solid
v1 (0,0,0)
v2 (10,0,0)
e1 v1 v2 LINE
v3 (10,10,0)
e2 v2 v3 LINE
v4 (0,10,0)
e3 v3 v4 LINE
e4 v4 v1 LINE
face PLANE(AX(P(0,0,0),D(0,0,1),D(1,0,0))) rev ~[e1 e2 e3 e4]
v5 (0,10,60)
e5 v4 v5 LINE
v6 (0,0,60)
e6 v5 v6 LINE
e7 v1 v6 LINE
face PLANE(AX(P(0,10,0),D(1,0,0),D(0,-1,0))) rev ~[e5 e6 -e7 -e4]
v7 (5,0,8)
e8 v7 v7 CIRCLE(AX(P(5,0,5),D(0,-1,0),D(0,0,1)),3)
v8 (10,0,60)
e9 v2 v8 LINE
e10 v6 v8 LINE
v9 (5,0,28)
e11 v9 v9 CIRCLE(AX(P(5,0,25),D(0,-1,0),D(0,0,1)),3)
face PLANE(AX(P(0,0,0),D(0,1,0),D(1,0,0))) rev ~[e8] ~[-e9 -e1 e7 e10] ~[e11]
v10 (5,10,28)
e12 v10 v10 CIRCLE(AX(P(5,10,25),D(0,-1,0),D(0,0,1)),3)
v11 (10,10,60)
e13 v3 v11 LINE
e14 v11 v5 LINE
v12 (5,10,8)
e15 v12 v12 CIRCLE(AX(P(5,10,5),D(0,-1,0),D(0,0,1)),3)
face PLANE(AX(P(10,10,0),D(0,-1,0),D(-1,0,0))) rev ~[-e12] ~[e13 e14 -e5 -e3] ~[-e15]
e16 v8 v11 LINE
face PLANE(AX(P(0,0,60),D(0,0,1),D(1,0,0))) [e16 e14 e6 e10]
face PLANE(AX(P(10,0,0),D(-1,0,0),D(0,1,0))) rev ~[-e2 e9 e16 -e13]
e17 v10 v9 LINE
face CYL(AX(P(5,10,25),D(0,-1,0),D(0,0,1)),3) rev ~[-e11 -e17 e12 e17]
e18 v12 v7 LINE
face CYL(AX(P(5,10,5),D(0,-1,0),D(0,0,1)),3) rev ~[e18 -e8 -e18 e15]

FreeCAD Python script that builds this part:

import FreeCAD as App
import Part
import Sketcher

V = App.Vector

doc = App.newDocument("Part")
body = doc.addObject("PartDesign::Body", "Body")

sketch1 = body.newObject("Sketcher::SketchObject", "Sketch")
sketch1.AttachmentSupport = (doc.getObject("XY_Plane"), [""])
sketch1.MapMode = "FlatFace"
sketch1.addGeometry(Part.LineSegment(V(0, 10, 0), V(0, 0, 0)), False)
sketch1.addGeometry(Part.LineSegment(V(0, 0, 0), V(10, 0, 0)), False)
sketch1.addGeometry(Part.LineSegment(V(10, 0, 0), V(10, 10, 0)), False)
sketch1.addGeometry(Part.LineSegment(V(10, 10, 0), V(0, 10, 0)), False)
sketch1.addConstraint(Sketcher.Constraint("Coincident", 0, 2, 1, 1))
sketch1.addConstraint(Sketcher.Constraint("Coincident", 1, 2, 2, 1))
sketch1.addConstraint(Sketcher.Constraint("Coincident", 2, 2, 3, 1))
sketch1.addConstraint(Sketcher.Constraint("Coincident", 3, 2, 0, 1))
sketch1.addConstraint(Sketcher.Constraint("Vertical", 0))
sketch1.addConstraint(Sketcher.Constraint("Horizontal", 1))
sketch1.addConstraint(Sketcher.Constraint("Vertical", 2))
sketch1.addConstraint(Sketcher.Constraint("Horizontal", 3))
sketch1.addConstraint(Sketcher.Constraint("Coincident", 0, 2, -1, 1))
sketch1.addConstraint(Sketcher.Constraint("Equal", 3, 0))
sketch1.addConstraint(Sketcher.Constraint("DistanceX", 1, 1, 1, 2, 10.0))
pad1 = body.newObject("PartDesign::Pad", "Pad")
pad1.Profile = sketch1
pad1.Length = 60

sketch2 = body.newObject("Sketcher::SketchObject", "Sketch001")
sketch2.AttachmentSupport = (doc.getObject("XZ_Plane"), [""])
sketch2.MapMode = "FlatFace"
sketch2.AttachmentOffset = App.Placement(V(0, 0, -10), App.Rotation())
sketch2.addGeometry(Part.Circle(V(5, 5, 0), V(0, 0, 1), 3), False)
sketch2.addConstraint(Sketcher.Constraint("Diameter", 0, 6.0))
sketch2.addConstraint(Sketcher.Constraint("DistanceX", -1, 1, 0, 3, 5.0))
sketch2.addConstraint(Sketcher.Constraint("DistanceY", -1, 1, 0, 3, 5.0))
doc.recompute()
hole = body.newObject("PartDesign::Hole", "Hole")
hole.Profile = sketch2
hole.ThreadType = "None"
hole.Diameter = 6
hole.DepthType = "ThroughAll"
hole.Reversed = True

sketch3 = body.newObject("Sketcher::SketchObject", "Sketch002")
sketch3.AttachmentSupport = (doc.getObject("XZ_Plane"), [""])
sketch3.MapMode = "FlatFace"
sketch3.AttachmentOffset = App.Placement(V(0, 0, -10), App.Rotation())
sketch3.addGeometry(Part.Circle(V(5, 25, 0), V(0, 0, 1), 3), False)
sketch3.addConstraint(Sketcher.Constraint("Diameter", 0, 6.0))
sketch3.addConstraint(Sketcher.Constraint("DistanceX", -1, 1, 0, 3, 5.0))
sketch3.addConstraint(Sketcher.Constraint("DistanceY", -1, 1, 0, 3, 25.0))
doc.recompute()
hole2 = body.newObject("PartDesign::Hole", "Hole001")
hole2.Profile = sketch3
hole2.ThreadType = "None"
hole2.Diameter = 6
hole2.DepthType = "ThroughAll"
hole2.Reversed = True

doc.recompute()
